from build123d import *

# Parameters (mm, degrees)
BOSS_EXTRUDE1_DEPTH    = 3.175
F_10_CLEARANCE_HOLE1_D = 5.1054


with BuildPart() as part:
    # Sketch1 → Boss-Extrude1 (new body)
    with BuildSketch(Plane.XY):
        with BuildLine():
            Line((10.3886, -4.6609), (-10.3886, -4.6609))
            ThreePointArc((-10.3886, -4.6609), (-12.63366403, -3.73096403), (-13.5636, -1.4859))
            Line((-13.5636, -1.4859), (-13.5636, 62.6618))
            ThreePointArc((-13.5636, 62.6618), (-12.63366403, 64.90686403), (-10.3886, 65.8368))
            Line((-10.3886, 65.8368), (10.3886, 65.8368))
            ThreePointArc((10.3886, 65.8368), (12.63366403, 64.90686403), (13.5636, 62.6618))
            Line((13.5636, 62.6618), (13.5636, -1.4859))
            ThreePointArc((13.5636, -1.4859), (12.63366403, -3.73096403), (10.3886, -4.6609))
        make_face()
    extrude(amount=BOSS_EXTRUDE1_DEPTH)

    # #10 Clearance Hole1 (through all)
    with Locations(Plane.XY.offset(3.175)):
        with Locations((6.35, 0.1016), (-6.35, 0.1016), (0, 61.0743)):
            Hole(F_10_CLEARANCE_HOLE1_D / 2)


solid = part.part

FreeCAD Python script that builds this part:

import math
import FreeCAD as App
import Part
import Sketcher

V = App.Vector
Q = App.Units.Quantity

doc = App.newDocument("Part")
body = doc.addObject("PartDesign::Body", "Body")

sketch1 = body.newObject("Sketcher::SketchObject", "Sketch")
sketch1.AttachmentSupport = (doc.getObject("XY_Plane"), [""])
sketch1.MapMode = "FlatFace"
sketch1.addGeometry([
    Part.LineSegment(V(-10.4, -4.7, 0), V(10.4, -4.7, 0)),
    Part.ArcOfCircle(Part.Circle(V(10.4, -1.5, 0), V(0, 0, 1), 3.2), math.radians(-90), math.radians(0)),
    Part.LineSegment(V(13.6, -1.5, 0), V(13.6, 62.7, 0)),
    Part.ArcOfCircle(Part.Circle(V(10.4, 62.7, 0), V(0, 0, 1), 3.2), math.radians(0), math.radians(90)),
    Part.LineSegment(V(10.4, 65.8, 0), V(-10.4, 65.8, 0)),
    Part.ArcOfCircle(Part.Circle(V(-10.4, 62.7, 0), V(0, 0, 1), 3.2), math.radians(90), math.radians(180)),
    Part.LineSegment(V(-13.6, 62.7, 0), V(-13.6, -1.5, 0)),
    Part.ArcOfCircle(Part.Circle(V(-10.4, -1.5, 0), V(0, 0, 1), 3.2), math.radians(-180), math.radians(-90)),
], False)
sketch1.addConstraint([
    Sketcher.Constraint("Tangent", 0, 2, 1, 1),
    Sketcher.Constraint("Tangent", 1, 2, 2, 1),
    Sketcher.Constraint("Tangent", 2, 2, 3, 1),
    Sketcher.Constraint("Tangent", 3, 2, 4, 1),
    Sketcher.Constraint("Tangent", 4, 2, 5, 1),
    Sketcher.Constraint("Tangent", 5, 2, 6, 1),
    Sketcher.Constraint("Tangent", 6, 2, 7, 1),
    Sketcher.Constraint("Tangent", 7, 2, 0, 1),
    Sketcher.Constraint("Horizontal", 0),
    Sketcher.Constraint("Vertical", 2),
    Sketcher.Constraint("Horizontal", 4),
    Sketcher.Constraint("Vertical", 6),
    Sketcher.Constraint("Equal", 1, 3),
    Sketcher.Constraint("Equal", 3, 5),
    Sketcher.Constraint("Equal", 5, 7),
    Sketcher.Constraint("Radius", 1, Q("0.125 in")),
    Sketcher.Constraint("DistanceX", 0, 1, 0, 2, Q("0.818 in")),
    Sketcher.Constraint("DistanceY", 2, 1, 2, 2, Q("2.5255 in")),
    Sketcher.Constraint("DistanceX", -1, 1, 1, 3, Q("0.409 in")),
    Sketcher.Constraint("DistanceY", -1, 1, 3, 3, Q("2.467 in")),
])
pad1 = body.newObject("PartDesign::Pad", "Pad")
pad1.Profile = sketch1
pad1.Length = Q("0.125 in")

sketch2 = body.newObject("Sketcher::SketchObject", "Sketch001")
sketch2.AttachmentSupport = (doc.getObject("XY_Plane"), [""])
sketch2.MapMode = "FlatFace"
sketch2.AttachmentOffset = App.Placement(V(0, 0, 0.125 * 25.4), App.Rotation())
sketch2.addGeometry([
    Part.Circle(V(6.3, 0.1, 0), V(0, 0, 1), 2.6),
    Part.Circle(V(-6.3, 0.1, 0), V(0, 0, 1), 2.6),
    Part.Circle(V(0, 61.1, 0), V(0, 0, 1), 2.6),
], False)
sketch2.addConstraint([
    Sketcher.Constraint("Equal", 0, 1),
    Sketcher.Constraint("Equal", 1, 2),
    Sketcher.Constraint("Symmetric", 0, 3, 1, 3, -2),
    Sketcher.Constraint("PointOnObject", 2, 3, -2),
    Sketcher.Constraint("Diameter", 0, Q("0.201 in")),
    Sketcher.Constraint("DistanceX", 1, 3, 0, 3, Q("0.5 in")),
    Sketcher.Constraint("DistanceY", -1, 1, 0, 3, Q("0.004 in")),
    Sketcher.Constraint("DistanceY", -1, 1, 2, 3, Q("2.4045 in")),
])
doc.recompute()
hole = body.newObject("PartDesign::Hole", "Hole")
hole.Profile = sketch2
hole.ThreadType = "None"
hole.Diameter = Q("0.201 in")
hole.DepthType = "ThroughAll"

doc.recompute()
